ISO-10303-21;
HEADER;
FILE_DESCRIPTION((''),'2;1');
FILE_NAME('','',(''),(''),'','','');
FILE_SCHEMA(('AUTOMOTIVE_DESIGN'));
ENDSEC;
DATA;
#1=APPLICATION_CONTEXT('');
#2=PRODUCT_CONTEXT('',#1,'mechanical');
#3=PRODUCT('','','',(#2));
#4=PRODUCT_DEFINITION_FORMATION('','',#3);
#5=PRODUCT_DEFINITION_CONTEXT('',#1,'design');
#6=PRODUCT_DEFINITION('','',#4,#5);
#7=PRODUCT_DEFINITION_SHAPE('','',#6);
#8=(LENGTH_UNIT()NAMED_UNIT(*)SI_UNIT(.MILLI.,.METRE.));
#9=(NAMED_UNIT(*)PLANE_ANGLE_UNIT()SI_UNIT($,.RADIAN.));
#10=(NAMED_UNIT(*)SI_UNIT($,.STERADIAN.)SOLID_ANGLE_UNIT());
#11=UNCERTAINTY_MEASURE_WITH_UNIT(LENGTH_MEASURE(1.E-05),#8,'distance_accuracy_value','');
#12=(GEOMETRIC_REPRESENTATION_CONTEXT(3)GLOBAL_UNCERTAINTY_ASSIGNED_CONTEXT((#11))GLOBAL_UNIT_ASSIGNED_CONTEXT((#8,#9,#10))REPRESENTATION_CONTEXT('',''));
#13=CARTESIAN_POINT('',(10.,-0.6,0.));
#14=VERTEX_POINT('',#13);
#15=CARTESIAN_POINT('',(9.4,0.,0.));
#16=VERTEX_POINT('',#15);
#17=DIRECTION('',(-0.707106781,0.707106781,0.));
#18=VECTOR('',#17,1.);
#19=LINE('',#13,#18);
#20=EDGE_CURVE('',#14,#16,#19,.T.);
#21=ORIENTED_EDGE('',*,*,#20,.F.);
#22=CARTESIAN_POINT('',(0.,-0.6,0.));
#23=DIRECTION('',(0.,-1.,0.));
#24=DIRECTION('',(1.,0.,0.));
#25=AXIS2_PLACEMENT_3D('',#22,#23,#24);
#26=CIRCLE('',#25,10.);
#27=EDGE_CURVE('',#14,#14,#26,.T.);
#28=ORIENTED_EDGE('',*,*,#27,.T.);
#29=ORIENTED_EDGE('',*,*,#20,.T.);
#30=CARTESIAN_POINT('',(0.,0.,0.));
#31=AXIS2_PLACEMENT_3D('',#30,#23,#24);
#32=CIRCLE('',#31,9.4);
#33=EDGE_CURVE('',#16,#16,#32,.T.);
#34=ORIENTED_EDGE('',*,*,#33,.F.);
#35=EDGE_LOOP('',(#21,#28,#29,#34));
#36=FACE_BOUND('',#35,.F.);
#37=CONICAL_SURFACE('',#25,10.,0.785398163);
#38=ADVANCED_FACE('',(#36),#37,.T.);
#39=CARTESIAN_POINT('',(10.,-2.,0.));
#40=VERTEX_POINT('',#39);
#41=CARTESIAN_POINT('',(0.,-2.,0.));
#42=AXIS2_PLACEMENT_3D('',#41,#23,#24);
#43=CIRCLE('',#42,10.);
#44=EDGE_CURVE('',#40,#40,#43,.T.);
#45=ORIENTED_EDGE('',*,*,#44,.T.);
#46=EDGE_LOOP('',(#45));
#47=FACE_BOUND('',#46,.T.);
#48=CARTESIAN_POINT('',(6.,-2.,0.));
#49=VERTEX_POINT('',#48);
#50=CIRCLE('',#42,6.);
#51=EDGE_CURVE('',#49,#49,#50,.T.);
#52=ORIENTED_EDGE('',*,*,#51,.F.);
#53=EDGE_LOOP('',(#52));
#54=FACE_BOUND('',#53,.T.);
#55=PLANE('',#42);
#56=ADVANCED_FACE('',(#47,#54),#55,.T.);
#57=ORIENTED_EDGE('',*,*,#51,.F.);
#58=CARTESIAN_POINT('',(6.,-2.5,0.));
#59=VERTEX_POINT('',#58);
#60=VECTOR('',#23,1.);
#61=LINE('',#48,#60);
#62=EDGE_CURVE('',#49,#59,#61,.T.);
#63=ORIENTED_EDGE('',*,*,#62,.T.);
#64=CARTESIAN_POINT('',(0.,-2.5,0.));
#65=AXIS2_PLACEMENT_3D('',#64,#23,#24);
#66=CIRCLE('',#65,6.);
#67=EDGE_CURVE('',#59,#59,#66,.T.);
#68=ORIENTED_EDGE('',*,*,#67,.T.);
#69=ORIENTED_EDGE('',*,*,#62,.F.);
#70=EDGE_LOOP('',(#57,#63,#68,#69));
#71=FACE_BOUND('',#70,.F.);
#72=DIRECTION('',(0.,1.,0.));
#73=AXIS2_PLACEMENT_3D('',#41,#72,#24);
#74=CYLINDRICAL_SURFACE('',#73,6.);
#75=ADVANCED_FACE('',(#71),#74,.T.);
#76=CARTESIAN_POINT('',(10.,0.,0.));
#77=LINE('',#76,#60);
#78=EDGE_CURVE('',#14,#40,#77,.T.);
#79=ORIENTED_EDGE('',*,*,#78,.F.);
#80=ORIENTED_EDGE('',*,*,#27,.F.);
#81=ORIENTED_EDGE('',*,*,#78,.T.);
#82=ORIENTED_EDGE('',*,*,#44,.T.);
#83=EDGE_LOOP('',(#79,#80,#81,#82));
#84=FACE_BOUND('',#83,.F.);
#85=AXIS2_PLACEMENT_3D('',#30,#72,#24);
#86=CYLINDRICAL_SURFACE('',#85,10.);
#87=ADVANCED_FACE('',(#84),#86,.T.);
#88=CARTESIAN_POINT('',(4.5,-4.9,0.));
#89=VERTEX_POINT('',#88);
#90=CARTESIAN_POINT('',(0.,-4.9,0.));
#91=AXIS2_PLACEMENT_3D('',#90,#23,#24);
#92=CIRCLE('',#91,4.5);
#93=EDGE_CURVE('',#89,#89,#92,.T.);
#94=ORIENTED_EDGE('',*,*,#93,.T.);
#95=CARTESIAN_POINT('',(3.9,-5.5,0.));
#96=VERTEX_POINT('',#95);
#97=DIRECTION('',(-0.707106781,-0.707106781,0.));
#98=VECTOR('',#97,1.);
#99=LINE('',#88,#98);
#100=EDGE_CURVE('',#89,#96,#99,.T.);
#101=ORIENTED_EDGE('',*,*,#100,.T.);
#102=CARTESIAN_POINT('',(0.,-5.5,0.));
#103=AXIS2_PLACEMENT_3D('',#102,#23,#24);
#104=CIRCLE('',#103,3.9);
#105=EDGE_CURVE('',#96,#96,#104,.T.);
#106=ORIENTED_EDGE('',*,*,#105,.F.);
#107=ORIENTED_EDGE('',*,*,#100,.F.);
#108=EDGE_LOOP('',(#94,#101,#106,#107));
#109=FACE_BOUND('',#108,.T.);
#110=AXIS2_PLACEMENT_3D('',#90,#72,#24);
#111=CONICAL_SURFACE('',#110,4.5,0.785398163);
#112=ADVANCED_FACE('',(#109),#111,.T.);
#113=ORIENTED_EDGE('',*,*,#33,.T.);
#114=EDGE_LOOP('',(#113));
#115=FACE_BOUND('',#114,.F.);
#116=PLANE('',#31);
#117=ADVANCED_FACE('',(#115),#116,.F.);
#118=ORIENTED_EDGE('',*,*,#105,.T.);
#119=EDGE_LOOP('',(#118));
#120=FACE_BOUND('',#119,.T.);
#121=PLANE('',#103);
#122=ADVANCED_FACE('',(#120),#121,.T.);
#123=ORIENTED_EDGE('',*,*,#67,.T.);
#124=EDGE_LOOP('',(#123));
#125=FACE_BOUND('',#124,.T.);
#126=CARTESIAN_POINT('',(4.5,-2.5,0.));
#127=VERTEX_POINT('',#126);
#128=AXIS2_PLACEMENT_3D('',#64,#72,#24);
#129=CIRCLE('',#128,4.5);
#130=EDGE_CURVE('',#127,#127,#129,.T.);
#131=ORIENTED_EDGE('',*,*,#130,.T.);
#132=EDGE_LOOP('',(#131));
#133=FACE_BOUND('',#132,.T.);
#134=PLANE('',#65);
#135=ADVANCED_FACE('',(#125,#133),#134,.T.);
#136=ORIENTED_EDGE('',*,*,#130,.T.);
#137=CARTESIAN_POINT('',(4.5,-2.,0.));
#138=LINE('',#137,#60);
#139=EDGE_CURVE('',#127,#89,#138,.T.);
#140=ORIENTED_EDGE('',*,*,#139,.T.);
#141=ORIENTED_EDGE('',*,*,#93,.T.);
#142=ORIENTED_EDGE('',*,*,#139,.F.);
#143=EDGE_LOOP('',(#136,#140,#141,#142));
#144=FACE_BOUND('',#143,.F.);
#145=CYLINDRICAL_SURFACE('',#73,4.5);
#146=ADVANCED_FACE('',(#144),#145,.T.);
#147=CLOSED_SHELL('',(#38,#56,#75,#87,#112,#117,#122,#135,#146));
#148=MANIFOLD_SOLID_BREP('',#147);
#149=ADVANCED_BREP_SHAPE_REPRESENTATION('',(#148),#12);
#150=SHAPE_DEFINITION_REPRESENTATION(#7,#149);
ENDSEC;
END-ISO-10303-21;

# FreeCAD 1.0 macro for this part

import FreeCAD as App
import Part
import Sketcher
from FreeCAD import Vector
Q = App.Units.Quantity


def edges_at(feature, points):
    """Names of the edges that pass closest to the given points."""
    edges = feature.Shape.Edges
    near = lambda p: min(range(len(edges)), key=lambda i: edges[i].distToShape(Part.Vertex(*p))[0])
    return sorted({f"Edge{near(p) + 1}" for p in points})

doc = App.newDocument("Part")
body = doc.addObject("PartDesign::Body", "Body")

# Sketch on XZ plane
sketch1 = body.newObject("Sketcher::SketchObject", "Sketch")
sketch1.AttachmentSupport = (doc.getObject("XZ_Plane"), [""])
sketch1.MapMode = "FlatFace"
sketch1.addGeometry(Part.Circle(Vector(0, 0, 0), Vector(0, 0, 1), 10), False)
sketch1.addConstraint(Sketcher.Constraint("Coincident", 0, 3, -1, 1))
sketch1.addConstraint(Sketcher.Constraint("Diameter", 0, Q("20 mm")))
pad1 = body.newObject("PartDesign::Pad", "Pad")
pad1.Profile = sketch1
pad1.Length = 2

# Sketch on XZ plane
sketch2 = body.newObject("Sketcher::SketchObject", "Sketch001")
sketch2.AttachmentSupport = (doc.getObject("XZ_Plane"), [""])
sketch2.MapMode = "FlatFace"
sketch2.AttachmentOffset = App.Placement(Vector(0, 0, 2), App.Rotation())
sketch2.addGeometry(Part.Circle(Vector(0, 0, 0), Vector(0, 0, 1), 4.5), False)
sketch2.addConstraint(Sketcher.Constraint("Coincident", 0, 3, -1, 1))
sketch2.addConstraint(Sketcher.Constraint("Diameter", 0, Q("9 mm")))
pad2 = body.newObject("PartDesign::Pad", "Pad001")
pad2.Profile = sketch2
pad2.Length = 3.5

# Sketch on XZ plane
sketch3 = body.newObject("Sketcher::SketchObject", "Sketch002")
sketch3.AttachmentSupport = (doc.getObject("XZ_Plane"), [""])
sketch3.MapMode = "FlatFace"
sketch3.AttachmentOffset = App.Placement(Vector(0, 0, 2), App.Rotation())
sketch3.addGeometry(Part.Circle(Vector(0, 0, 0), Vector(0, 0, 1), 6), False)
sketch3.addConstraint(Sketcher.Constraint("Coincident", 0, 3, -1, 1))
sketch3.addConstraint(Sketcher.Constraint("Diameter", 0, Q("12 mm")))
pad3 = body.newObject("PartDesign::Pad", "Pad002")
pad3.Profile = sketch3
pad3.Length = 0.5
doc.recompute()

chamfer = body.newObject("PartDesign::Chamfer", "Chamfer")
chamfer.Base = (pad3, edges_at(pad3, [(-10, 0, 0), (-4.5, -5.5, 0)]))
chamfer.Size = 0.6

doc.recompute()
